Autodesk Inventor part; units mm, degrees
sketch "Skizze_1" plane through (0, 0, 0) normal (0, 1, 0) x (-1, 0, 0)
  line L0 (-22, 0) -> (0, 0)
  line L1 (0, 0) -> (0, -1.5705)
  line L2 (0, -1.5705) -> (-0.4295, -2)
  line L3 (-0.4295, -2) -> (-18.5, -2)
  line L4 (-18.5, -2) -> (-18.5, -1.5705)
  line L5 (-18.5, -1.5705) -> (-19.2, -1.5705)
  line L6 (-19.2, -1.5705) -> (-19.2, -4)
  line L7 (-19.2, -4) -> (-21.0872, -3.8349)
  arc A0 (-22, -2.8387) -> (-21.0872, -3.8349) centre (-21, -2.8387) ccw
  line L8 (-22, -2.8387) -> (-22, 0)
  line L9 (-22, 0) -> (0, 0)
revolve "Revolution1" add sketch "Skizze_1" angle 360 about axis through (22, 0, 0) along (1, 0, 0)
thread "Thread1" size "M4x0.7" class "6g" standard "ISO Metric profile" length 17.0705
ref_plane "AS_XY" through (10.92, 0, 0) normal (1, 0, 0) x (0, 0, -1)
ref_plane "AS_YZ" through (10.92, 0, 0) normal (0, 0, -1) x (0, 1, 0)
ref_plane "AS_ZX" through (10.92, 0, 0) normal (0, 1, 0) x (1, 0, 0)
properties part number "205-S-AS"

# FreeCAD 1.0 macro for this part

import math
import FreeCAD as App
import Part
import Sketcher

V = App.Vector
Q = App.Units.Quantity

doc = App.newDocument("Part")
body = doc.addObject("PartDesign::Body", "Body")

# Sketch on XZ plane
sketch1 = body.newObject("Sketcher::SketchObject", "Sketch")
sketch1.AttachmentSupport = (doc.getObject("XZ_Plane"), [""])
sketch1.MapMode = "FlatFace"
sketch1.addGeometry(Part.LineSegment(V(0, 0, 0), V(22, 0, 0)), False)
sketch1.addGeometry(Part.LineSegment(V(22, 0, 0), V(22, -2.8387, 0)), False)
sketch1.addGeometry(Part.ArcOfCircle(Part.Circle(V(21, -2.8387, 0), V(0, 0, 1), 1), math.radians(-84.9975), math.radians(0)), False)
sketch1.addGeometry(Part.LineSegment(V(21.0872, -3.8349, 0), V(19.2, -4, 0)), False)
sketch1.addGeometry(Part.LineSegment(V(19.2, -4, 0), V(19.2, -1.5705, 0)), False)
sketch1.addGeometry(Part.LineSegment(V(19.2, -1.5705, 0), V(18.5, -1.5705, 0)), False)
sketch1.addGeometry(Part.LineSegment(V(18.5, -1.5705, 0), V(18.5, -2, 0)), False)
sketch1.addGeometry(Part.LineSegment(V(18.5, -2, 0), V(0.4295, -2, 0)), False)
sketch1.addGeometry(Part.LineSegment(V(0.4295, -2, 0), V(0, -1.5705, 0)), False)
sketch1.addGeometry(Part.LineSegment(V(0, -1.5705, 0), V(0, 0, 0)), False)
sketch1.addConstraint(Sketcher.Constraint("Coincident", 0, 2, 1, 1))
sketch1.addConstraint(Sketcher.Constraint("Tangent", 1, 2, 2, 2))
sketch1.addConstraint(Sketcher.Constraint("Tangent", 2, 1, 3, 1))
sketch1.addConstraint(Sketcher.Constraint("Coincident", 3, 2, 4, 1))
sketch1.addConstraint(Sketcher.Constraint("Coincident", 4, 2, 5, 1))
sketch1.addConstraint(Sketcher.Constraint("Coincident", 5, 2, 6, 1))
sketch1.addConstraint(Sketcher.Constraint("Coincident", 6, 2, 7, 1))
sketch1.addConstraint(Sketcher.Constraint("Coincident", 7, 2, 8, 1))
sketch1.addConstraint(Sketcher.Constraint("Coincident", 8, 2, 9, 1))
sketch1.addConstraint(Sketcher.Constraint("Coincident", 9, 2, 0, 1))
sketch1.addConstraint(Sketcher.Constraint("Horizontal", 0))
sketch1.addConstraint(Sketcher.Constraint("Vertical", 1))
sketch1.addConstraint(Sketcher.Constraint("Vertical", 4))
sketch1.addConstraint(Sketcher.Constraint("Horizontal", 5))
sketch1.addConstraint(Sketcher.Constraint("Vertical", 6))
sketch1.addConstraint(Sketcher.Constraint("Horizontal", 7))
sketch1.addConstraint(Sketcher.Constraint("Vertical", 9))
sketch1.addConstraint(Sketcher.Constraint("Coincident", 9, 2, -1, 1))
sketch1.addConstraint(Sketcher.Constraint("Horizontal", 5, 2, 8, 2))
sketch1.addConstraint(Sketcher.Constraint("Radius", 2, 1.0))
sketch1.addConstraint(Sketcher.Constraint("DistanceX", 0, 1, 0, 2, 22.0))
sketch1.addConstraint(Sketcher.Constraint("Angle", 3, Q("-175.0003 deg")))
sketch1.addConstraint(Sketcher.Constraint("Angle", 8, Q("135 deg")))
sketch1.addConstraint(Sketcher.Constraint("DistanceX", 5, 2, 5, 1, 0.7))
sketch1.addConstraint(Sketcher.Constraint("DistanceY", 3, 2, -1, 1, 4.0))
sketch1.addConstraint(Sketcher.Constraint("DistanceY", 6, 2, -1, 1, 2.0))
sketch1.addConstraint(Sketcher.Constraint("DistanceX", -1, 1, 3, 2, 19.2))
sketch1.addConstraint(Sketcher.Constraint("DistanceX", 7, 2, 7, 1, 18.0705))
revolution = body.newObject("PartDesign::Revolution", "Revolution")
revolution.Profile = sketch1
revolution.ReferenceAxis = (sketch1, ["H_Axis"])
revolution.Angle = 360

doc.recompute()
